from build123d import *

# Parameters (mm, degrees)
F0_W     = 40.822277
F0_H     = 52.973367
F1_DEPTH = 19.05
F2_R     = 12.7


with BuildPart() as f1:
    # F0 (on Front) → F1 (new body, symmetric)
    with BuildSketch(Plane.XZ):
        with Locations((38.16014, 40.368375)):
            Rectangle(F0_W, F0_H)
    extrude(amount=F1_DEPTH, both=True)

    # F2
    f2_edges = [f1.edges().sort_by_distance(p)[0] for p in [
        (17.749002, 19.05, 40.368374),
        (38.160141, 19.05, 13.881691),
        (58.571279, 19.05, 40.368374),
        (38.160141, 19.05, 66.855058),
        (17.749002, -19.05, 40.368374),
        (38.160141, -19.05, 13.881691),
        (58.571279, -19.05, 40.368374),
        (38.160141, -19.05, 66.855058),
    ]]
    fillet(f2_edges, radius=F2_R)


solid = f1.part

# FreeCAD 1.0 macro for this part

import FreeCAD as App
import Part
import Sketcher

V = App.Vector
Q = App.Units.Quantity


def edges_at(feature, points):
    """Names of the edges that pass closest to the given points."""
    edges = feature.Shape.Edges
    near = lambda p: min(range(len(edges)), key=lambda i: edges[i].distToShape(Part.Vertex(*p))[0])
    return sorted({f"Edge{near(p) + 1}" for p in points})


def add_polygon(sketch, points):
    """Adds a closed chain of lines whose ends are joined by coincident constraints."""
    first, n = sketch.GeometryCount, len(points)
    for a, b in zip(points, points[1:] + points[:1]):
        sketch.addGeometry(Part.LineSegment(App.Vector(*a, 0), App.Vector(*b, 0)), False)
    for i in range(n):
        sketch.addConstraint(Sketcher.Constraint("Coincident", first + i, 2, first + (i + 1) % n, 1))

doc = App.newDocument("Part")
params = doc.addObject("Spreadsheet::Sheet", "Params")
for row, (alias, value) in enumerate([
    ("pad1_length", "1.5 in"),
    ("fillet_radius", "0.5 in"),
], start=1):
    params.set(f"A{row}", alias)
    params.set(f"B{row}", "=" + value)
    params.setAlias(f"B{row}", alias)

body = doc.addObject("PartDesign::Body", "Body")

# Sketch on XZ plane
sketch1 = body.newObject("Sketcher::SketchObject", "Sketch")
sketch1.AttachmentSupport = (doc.getObject("XZ_Plane"), [""])
sketch1.MapMode = "FlatFace"
add_polygon(sketch1, [(18, 67), (18, 14), (59, 14), (59, 67)])  # lines 0-3
sketch1.addConstraint([
    Sketcher.Constraint("Vertical", 0),
    Sketcher.Constraint("Horizontal", 1),
    Sketcher.Constraint("Vertical", 2),
    Sketcher.Constraint("Horizontal", 3),
    Sketcher.Constraint("DistanceX", -1, 1, 0, 2, Q("17.749001 mm")),
    Sketcher.Constraint("DistanceX", 1, 1, 1, 2, Q("40.822277 mm")),
    Sketcher.Constraint("DistanceY", 0, 2, 0, 1, Q("52.973367 mm")),
    Sketcher.Constraint("DistanceY", -1, 1, 0, 2, Q("13.881692 mm")),
])
pad1 = body.newObject("PartDesign::Pad", "Pad")
pad1.Profile = sketch1
pad1.setExpression("Length", "Params.pad1_length")
pad1.Midplane = True
doc.recompute()

fillet = body.newObject("PartDesign::Fillet", "Fillet")
fillet.Base = (pad1, edges_at(pad1, [
    (17.749, 19.05, 40.368),
    (38.16, 19.05, 13.882),
    (58.571, 19.05, 40.368),
    (38.16, 19.05, 66.855),
    (17.749, -19.05, 40.368),
    (38.16, -19.05, 13.882),
    (58.571, -19.05, 40.368),
    (38.16, -19.05, 66.855),
]))
fillet.setExpression("Radius", "Params.fillet_radius")

doc.recompute()
